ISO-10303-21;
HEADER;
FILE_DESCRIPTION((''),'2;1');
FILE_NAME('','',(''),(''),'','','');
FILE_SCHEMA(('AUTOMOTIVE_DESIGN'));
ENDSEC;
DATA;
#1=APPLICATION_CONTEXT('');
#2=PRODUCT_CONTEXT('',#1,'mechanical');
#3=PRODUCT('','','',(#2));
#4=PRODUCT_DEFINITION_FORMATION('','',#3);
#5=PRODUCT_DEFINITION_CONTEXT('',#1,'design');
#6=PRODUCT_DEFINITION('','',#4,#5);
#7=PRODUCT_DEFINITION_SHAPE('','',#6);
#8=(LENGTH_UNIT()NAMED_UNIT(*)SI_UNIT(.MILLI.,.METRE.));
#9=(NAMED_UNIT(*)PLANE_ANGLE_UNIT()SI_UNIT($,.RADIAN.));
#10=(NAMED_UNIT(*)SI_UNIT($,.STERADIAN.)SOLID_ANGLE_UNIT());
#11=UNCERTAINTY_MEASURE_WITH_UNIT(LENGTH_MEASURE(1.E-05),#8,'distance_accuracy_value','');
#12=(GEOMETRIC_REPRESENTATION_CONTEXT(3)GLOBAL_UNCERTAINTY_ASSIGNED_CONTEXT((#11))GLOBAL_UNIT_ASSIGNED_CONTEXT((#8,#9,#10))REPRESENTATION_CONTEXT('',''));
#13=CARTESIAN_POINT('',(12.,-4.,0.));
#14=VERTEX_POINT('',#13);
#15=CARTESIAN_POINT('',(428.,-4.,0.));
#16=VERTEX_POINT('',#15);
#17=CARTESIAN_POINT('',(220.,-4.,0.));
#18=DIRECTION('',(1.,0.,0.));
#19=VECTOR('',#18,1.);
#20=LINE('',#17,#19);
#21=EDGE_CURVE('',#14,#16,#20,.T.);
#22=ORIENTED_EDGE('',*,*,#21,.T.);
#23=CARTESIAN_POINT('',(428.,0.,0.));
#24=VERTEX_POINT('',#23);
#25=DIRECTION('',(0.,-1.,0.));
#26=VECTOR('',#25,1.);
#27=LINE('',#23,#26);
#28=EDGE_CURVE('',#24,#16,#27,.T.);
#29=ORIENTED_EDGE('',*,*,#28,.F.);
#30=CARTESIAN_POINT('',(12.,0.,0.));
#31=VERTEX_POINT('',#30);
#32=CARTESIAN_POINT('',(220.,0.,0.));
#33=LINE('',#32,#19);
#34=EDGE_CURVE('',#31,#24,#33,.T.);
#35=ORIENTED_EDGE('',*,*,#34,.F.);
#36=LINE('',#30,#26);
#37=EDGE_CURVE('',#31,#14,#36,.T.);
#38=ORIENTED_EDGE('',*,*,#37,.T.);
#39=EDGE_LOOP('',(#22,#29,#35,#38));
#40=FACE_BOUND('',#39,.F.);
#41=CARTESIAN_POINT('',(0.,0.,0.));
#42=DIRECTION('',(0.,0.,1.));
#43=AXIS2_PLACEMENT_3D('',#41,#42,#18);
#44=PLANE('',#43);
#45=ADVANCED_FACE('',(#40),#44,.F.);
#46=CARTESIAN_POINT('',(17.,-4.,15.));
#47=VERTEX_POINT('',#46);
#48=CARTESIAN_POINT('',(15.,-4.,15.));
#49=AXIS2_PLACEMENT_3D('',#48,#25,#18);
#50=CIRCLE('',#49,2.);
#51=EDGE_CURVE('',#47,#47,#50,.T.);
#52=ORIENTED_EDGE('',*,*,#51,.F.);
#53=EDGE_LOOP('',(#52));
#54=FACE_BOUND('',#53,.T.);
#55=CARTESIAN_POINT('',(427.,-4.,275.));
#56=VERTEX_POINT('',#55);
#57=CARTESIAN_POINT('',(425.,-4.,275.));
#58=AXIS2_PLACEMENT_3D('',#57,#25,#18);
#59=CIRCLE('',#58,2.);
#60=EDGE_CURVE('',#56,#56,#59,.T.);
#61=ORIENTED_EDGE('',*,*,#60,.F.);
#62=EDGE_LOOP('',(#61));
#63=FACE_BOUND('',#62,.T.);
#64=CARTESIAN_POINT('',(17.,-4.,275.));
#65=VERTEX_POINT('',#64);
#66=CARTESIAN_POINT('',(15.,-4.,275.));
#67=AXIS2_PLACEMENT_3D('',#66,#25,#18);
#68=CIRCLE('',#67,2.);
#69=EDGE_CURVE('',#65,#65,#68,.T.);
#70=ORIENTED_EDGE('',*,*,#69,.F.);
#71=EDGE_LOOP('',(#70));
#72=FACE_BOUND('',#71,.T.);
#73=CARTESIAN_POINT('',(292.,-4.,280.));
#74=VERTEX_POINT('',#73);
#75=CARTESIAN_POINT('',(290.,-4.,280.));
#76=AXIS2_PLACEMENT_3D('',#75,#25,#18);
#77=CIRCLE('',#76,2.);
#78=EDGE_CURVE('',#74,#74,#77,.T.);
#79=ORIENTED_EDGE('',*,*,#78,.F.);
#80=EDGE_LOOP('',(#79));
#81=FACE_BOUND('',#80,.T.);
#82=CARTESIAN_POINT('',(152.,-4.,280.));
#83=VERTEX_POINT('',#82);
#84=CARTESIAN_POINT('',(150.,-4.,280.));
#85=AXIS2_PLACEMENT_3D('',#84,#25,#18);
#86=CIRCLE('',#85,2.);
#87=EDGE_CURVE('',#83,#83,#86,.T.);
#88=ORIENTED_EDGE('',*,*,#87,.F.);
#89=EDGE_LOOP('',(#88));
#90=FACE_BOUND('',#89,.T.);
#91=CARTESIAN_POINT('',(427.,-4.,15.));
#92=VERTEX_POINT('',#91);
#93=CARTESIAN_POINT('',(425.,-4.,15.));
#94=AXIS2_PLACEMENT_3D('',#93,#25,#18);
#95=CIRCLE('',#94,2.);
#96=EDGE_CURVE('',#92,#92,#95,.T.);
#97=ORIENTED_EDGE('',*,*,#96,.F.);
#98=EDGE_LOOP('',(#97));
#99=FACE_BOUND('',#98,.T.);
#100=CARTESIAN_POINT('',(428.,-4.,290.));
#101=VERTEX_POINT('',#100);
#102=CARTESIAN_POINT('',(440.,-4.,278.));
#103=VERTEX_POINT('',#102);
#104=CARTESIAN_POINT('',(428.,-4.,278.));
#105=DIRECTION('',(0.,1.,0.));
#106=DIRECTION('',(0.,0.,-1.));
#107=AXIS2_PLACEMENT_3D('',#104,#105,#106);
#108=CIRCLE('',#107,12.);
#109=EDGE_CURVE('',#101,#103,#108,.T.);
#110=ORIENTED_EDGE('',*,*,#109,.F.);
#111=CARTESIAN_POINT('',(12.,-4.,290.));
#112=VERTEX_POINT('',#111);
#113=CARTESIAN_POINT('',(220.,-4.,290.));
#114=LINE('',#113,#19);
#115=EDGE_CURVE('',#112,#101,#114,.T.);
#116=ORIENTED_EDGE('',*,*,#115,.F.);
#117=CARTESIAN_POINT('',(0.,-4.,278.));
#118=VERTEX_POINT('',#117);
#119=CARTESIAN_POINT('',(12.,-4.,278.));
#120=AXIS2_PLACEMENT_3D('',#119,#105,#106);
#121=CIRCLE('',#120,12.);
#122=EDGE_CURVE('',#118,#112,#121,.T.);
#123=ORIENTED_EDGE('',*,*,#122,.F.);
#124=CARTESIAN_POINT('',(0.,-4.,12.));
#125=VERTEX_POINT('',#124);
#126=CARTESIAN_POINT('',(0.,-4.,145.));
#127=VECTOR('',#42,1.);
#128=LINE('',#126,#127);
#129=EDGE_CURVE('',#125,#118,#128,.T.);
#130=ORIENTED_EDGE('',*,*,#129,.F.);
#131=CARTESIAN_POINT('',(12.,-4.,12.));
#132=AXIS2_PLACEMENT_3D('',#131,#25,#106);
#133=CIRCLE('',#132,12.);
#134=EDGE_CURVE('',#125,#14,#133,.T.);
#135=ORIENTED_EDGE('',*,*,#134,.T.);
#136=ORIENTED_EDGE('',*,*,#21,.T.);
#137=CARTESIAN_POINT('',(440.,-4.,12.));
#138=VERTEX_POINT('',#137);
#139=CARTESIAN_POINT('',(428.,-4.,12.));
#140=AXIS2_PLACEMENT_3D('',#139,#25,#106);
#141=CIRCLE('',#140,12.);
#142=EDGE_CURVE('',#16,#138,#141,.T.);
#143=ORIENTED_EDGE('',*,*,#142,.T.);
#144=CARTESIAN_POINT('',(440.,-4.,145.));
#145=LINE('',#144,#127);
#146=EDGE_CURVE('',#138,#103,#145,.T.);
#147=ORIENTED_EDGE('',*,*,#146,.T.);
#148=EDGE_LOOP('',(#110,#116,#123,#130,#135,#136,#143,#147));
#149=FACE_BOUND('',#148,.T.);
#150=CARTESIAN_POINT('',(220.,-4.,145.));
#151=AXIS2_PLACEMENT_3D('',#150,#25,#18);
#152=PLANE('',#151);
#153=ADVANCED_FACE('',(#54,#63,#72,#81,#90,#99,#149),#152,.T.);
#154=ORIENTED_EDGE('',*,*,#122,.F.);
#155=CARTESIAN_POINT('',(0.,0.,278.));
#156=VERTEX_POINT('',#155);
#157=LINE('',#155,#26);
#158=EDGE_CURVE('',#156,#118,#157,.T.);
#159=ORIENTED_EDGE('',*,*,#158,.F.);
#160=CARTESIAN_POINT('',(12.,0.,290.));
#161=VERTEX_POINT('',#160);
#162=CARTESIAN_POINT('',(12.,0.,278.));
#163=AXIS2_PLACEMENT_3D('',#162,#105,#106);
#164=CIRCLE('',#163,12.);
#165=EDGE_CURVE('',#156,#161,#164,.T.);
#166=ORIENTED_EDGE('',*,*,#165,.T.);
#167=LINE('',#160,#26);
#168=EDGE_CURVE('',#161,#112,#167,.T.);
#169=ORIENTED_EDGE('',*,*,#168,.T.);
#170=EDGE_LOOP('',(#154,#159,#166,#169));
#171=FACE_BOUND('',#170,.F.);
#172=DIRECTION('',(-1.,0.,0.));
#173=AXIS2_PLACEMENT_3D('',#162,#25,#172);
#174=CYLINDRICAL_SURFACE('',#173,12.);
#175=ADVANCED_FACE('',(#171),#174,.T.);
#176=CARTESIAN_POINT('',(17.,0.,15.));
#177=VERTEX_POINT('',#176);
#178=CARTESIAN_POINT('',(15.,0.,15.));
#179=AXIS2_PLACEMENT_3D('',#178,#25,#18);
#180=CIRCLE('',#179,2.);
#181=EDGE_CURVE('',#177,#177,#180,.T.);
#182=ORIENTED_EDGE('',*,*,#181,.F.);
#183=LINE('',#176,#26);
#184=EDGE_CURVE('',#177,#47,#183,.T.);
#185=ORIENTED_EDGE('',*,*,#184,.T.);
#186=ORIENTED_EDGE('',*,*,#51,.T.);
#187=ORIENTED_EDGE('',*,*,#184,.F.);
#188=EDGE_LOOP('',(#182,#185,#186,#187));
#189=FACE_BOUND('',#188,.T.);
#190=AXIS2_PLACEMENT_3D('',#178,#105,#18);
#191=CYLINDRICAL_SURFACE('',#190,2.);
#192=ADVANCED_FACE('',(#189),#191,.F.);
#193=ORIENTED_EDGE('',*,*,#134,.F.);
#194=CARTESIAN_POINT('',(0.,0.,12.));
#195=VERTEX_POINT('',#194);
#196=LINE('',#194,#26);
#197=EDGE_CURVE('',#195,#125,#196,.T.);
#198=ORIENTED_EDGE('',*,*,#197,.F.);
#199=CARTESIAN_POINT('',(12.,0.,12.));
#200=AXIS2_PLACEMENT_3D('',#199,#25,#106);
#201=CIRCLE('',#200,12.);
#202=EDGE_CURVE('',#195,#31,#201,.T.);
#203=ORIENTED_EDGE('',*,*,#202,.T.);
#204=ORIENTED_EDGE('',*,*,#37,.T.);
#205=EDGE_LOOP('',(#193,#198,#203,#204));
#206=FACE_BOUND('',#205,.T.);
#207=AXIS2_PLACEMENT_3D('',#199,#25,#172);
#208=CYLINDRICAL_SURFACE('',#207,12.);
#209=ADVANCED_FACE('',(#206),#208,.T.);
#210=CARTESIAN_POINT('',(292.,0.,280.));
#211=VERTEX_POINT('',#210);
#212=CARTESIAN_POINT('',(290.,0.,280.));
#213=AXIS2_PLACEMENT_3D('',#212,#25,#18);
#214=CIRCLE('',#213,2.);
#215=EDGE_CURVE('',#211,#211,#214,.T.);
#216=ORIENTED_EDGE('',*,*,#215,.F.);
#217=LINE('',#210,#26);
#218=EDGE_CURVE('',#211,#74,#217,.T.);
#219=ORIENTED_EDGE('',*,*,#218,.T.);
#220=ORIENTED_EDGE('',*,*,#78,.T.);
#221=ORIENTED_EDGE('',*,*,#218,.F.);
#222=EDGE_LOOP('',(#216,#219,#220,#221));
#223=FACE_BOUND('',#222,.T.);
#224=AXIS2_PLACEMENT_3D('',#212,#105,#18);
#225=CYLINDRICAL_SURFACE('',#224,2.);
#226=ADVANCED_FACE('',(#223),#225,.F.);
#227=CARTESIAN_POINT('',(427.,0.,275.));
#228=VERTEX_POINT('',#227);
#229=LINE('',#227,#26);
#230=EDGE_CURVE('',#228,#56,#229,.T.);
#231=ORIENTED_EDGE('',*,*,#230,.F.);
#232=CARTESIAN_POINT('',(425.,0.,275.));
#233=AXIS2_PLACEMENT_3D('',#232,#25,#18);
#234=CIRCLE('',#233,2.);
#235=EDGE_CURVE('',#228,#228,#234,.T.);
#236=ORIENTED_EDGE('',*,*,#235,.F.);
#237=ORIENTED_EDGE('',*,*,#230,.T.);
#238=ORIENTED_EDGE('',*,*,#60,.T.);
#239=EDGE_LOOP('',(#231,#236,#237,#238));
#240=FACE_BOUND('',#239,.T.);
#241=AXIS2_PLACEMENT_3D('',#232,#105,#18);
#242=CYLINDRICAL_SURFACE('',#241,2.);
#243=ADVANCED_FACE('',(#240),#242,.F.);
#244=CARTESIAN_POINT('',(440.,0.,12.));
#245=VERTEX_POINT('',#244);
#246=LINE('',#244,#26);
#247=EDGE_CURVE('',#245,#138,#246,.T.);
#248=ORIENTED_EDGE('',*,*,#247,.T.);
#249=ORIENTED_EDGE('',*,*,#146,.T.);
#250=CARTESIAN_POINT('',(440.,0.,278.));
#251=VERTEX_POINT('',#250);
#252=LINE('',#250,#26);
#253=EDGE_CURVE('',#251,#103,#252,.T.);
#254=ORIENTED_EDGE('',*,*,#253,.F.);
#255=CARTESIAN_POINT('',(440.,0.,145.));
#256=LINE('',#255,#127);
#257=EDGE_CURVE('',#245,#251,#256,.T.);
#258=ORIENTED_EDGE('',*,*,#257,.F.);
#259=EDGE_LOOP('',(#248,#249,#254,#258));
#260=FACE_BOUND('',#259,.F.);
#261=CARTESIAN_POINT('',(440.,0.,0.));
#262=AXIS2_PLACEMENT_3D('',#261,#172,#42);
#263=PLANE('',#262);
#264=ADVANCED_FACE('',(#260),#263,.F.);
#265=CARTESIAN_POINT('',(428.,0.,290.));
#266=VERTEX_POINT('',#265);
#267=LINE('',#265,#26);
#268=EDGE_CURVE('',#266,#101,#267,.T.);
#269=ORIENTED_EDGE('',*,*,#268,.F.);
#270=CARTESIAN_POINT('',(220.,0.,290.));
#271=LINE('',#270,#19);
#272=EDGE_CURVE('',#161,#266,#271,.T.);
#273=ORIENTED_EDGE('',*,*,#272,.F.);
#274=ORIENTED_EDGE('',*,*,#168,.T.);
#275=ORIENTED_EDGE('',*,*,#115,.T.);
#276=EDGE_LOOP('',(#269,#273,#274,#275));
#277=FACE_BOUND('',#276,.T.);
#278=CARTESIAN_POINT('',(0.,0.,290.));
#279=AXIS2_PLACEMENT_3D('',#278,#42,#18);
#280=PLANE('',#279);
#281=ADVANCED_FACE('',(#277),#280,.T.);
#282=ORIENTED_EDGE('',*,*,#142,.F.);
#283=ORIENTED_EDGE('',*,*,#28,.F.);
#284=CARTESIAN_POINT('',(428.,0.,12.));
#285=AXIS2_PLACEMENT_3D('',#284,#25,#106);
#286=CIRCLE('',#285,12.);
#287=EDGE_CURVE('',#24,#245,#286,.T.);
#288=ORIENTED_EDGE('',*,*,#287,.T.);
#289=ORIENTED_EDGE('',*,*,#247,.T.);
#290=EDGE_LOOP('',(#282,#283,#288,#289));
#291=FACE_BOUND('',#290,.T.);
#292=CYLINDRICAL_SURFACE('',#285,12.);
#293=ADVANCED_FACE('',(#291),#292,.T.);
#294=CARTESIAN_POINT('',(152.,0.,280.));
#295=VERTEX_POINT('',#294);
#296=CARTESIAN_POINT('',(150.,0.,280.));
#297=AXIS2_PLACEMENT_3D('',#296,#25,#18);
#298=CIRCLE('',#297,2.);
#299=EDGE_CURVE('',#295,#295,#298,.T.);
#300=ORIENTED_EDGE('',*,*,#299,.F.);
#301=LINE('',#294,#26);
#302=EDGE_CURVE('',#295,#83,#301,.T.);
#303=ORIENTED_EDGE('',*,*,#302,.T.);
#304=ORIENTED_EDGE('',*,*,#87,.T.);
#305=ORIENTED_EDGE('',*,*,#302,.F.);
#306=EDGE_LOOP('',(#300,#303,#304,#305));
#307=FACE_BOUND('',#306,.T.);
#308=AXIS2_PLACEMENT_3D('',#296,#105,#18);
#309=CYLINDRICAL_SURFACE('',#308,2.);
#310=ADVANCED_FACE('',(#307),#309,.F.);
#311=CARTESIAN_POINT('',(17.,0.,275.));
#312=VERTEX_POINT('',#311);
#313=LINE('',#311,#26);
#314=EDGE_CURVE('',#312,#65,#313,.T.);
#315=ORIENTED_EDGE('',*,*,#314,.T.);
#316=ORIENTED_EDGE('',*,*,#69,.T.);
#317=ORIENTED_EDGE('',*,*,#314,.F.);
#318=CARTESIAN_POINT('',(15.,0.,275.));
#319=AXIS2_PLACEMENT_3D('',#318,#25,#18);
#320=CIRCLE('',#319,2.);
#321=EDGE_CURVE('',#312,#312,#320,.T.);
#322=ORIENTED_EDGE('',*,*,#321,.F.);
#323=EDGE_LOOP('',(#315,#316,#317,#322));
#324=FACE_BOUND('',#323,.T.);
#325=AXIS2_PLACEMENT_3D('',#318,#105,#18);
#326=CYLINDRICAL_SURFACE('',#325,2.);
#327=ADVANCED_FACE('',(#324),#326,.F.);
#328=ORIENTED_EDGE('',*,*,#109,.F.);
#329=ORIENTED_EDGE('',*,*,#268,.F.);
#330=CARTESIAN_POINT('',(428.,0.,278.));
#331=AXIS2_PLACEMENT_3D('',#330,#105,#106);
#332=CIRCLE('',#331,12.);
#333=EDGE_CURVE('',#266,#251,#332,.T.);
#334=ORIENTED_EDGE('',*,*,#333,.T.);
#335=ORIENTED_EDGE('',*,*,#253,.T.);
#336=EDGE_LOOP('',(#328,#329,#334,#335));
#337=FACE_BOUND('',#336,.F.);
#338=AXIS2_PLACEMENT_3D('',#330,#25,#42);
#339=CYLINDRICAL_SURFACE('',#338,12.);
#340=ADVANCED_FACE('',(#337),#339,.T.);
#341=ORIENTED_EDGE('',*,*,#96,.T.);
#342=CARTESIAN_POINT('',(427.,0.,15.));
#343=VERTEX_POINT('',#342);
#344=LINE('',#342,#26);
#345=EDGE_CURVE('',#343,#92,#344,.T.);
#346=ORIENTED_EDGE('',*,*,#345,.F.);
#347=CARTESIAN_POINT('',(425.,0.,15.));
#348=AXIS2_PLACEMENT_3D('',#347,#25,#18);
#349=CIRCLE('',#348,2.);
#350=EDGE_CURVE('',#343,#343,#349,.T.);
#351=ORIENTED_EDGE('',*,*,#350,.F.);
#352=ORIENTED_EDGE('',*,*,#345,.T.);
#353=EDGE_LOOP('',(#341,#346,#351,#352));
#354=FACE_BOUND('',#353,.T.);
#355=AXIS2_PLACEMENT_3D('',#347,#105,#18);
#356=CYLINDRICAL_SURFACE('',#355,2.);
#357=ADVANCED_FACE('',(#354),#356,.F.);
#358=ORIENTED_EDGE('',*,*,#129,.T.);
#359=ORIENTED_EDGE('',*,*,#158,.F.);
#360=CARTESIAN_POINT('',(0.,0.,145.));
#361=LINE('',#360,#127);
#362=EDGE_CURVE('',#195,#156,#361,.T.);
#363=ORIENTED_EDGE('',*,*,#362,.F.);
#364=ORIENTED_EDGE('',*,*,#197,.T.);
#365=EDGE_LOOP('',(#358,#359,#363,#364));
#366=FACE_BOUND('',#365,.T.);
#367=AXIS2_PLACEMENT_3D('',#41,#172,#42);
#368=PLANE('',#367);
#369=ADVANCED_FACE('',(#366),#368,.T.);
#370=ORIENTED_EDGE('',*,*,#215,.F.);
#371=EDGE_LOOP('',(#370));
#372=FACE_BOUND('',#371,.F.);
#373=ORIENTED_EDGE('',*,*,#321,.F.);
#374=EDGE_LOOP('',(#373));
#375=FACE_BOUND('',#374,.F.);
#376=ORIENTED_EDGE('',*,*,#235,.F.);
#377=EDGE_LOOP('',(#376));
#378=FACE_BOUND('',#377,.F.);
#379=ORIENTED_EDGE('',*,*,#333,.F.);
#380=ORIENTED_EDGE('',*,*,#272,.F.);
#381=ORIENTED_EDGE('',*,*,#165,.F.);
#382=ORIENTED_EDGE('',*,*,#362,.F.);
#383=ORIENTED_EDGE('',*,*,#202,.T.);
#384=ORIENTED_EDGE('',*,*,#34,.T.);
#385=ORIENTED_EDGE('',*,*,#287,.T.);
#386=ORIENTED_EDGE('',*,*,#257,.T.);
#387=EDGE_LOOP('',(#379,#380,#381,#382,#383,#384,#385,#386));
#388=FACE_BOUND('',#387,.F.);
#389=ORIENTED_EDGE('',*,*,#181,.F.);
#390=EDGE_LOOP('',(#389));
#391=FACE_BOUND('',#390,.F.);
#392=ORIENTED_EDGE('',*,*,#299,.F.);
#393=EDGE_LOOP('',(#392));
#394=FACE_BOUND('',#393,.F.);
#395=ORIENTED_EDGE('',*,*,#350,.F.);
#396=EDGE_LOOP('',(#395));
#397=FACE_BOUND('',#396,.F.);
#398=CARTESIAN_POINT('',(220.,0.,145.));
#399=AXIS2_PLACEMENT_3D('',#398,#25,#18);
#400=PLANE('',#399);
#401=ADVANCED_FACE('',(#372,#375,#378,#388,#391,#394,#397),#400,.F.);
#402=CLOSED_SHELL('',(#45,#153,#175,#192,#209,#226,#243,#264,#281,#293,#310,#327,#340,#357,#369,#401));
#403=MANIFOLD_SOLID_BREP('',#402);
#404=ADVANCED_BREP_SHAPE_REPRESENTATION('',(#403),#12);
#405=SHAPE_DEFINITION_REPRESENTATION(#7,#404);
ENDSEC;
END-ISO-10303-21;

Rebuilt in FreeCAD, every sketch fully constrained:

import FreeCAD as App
import Part
import Sketcher

V = App.Vector


def edges_at(feature, points):
    """Names of the edges that pass closest to the given points."""
    edges = feature.Shape.Edges
    near = lambda p: min(range(len(edges)), key=lambda i: edges[i].distToShape(Part.Vertex(*p))[0])
    return sorted({f"Edge{near(p) + 1}" for p in points})

doc = App.newDocument("Part")
body = doc.addObject("PartDesign::Body", "Body")

# Sketch on XZ plane
sketch1 = doc.addObject("Sketcher::SketchObject", "Sketch")
body.addObject(sketch1)
sketch1.AttachmentSupport = (doc.XZ_Plane, [""])
sketch1.MapMode = "FlatFace"
sketch1.addGeometry([
    Part.LineSegment(V(0, 290, 0), V(0, 0, 0)),  # 0
    Part.LineSegment(V(0, 0, 0), V(440, 0, 0)),  # 1
    Part.LineSegment(V(440, 0, 0), V(440, 290, 0)),  # 2
    Part.LineSegment(V(440, 290, 0), V(0, 290, 0)),  # 3
    Part.Circle(V(15, 15, 0), V(0, 0, 1), 2),  # 4
    Part.Circle(V(425, 15, 0), V(0, 0, 1), 2),  # 5
    Part.Circle(V(15, 275, 0), V(0, 0, 1), 2),  # 6
    Part.Circle(V(150, 280, 0), V(0, 0, 1), 2),  # 7
    Part.Circle(V(290, 280, 0), V(0, 0, 1), 2),  # 8
    Part.Circle(V(425, 275, 0), V(0, 0, 1), 2),  # 9
], False)
sketch1.addConstraint([
    Sketcher.Constraint("Coincident", 0, 2, 1, 1),
    Sketcher.Constraint("Coincident", 1, 2, 2, 1),
    Sketcher.Constraint("Coincident", 2, 2, 3, 1),
    Sketcher.Constraint("Coincident", 3, 2, 0, 1),
    Sketcher.Constraint("Vertical", 0),
    Sketcher.Constraint("Horizontal", 1),
    Sketcher.Constraint("Vertical", 2),
    Sketcher.Constraint("Horizontal", 3),
    Sketcher.Constraint("Coincident", 0, 2, -1, 1),
    Sketcher.Constraint("Equal", 4, 5),
    Sketcher.Constraint("Equal", 5, 6),
    Sketcher.Constraint("Equal", 6, 7),
    Sketcher.Constraint("Equal", 7, 8),
    Sketcher.Constraint("Equal", 8, 9),
    Sketcher.Constraint("Horizontal", 4, 3, 5, 3),
    Sketcher.Constraint("Horizontal", 7, 3, 8, 3),
    Sketcher.Constraint("Horizontal", 6, 3, 9, 3),
    Sketcher.Constraint("Vertical", 4, 3, 6, 3),
    Sketcher.Constraint("Vertical", 5, 3, 9, 3),
    Sketcher.Constraint("Diameter", 4, 4.0),
    Sketcher.Constraint("DistanceX", 1, 1, 1, 2, 440.0),
    Sketcher.Constraint("DistanceY", 0, 2, 0, 1, 290.0),
    Sketcher.Constraint("DistanceX", -1, 1, 4, 3, 15.0),
    Sketcher.Constraint("DistanceY", -1, 1, 4, 3, 15.0),
    Sketcher.Constraint("DistanceX", -1, 1, 5, 3, 425.0),
    Sketcher.Constraint("DistanceY", -1, 1, 6, 3, 275.0),
    Sketcher.Constraint("DistanceX", -1, 1, 7, 3, 150.0),
    Sketcher.Constraint("DistanceY", -1, 1, 7, 3, 280.0),
    Sketcher.Constraint("DistanceX", -1, 1, 8, 3, 290.0),
])
pad1 = doc.addObject("PartDesign::Pad", "Pad")
body.addObject(pad1)
pad1.Profile = sketch1
pad1.Length = 4
doc.recompute()

fillet = doc.addObject("PartDesign::Fillet", "Fillet")
body.addObject(fillet)
fillet.Base = (pad1, edges_at(pad1, [
    (440, -2, 290),
    (0, -2, 290),
    (0, -2, 0),
    (440, -2, 0),
]))
fillet.Radius = 12

doc.recompute()
